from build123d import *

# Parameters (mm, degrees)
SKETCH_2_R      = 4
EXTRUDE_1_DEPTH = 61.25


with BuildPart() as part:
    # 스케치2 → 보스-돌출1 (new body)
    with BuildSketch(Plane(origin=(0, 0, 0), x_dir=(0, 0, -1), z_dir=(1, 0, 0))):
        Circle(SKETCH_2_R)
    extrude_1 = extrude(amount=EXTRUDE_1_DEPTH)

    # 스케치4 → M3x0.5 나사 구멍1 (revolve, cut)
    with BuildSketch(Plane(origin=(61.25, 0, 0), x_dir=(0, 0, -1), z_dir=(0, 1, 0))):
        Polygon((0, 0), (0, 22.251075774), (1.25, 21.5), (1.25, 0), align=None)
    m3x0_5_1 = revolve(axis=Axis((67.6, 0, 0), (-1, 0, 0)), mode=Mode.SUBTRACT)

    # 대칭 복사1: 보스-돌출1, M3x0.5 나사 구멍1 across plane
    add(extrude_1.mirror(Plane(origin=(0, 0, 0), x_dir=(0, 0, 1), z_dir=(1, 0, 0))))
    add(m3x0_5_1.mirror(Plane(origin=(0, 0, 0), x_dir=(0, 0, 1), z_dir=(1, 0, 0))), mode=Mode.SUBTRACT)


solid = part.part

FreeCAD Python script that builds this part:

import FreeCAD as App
import Part
import Sketcher
from FreeCAD import Vector
Q = App.Units.Quantity


def add_polygon(sketch, points):
    """Adds a closed chain of lines whose ends are joined by coincident constraints."""
    first, n = sketch.GeometryCount, len(points)
    for a, b in zip(points, points[1:] + points[:1]):
        sketch.addGeometry(Part.LineSegment(App.Vector(*a, 0), App.Vector(*b, 0)), False)
    for i in range(n):
        sketch.addConstraint(Sketcher.Constraint("Coincident", first + i, 2, first + (i + 1) % n, 1))

doc = App.newDocument("Part")
params = doc.addObject("Spreadsheet::Sheet", "Params")
for row, (alias, value) in enumerate([
    ("sketch1_diameter", "8 mm"),
    ("pad1_length", "61.25 mm"),
    ("sketch2_width", "21.5 mm"),
    ("sketch2_height", "1.25 mm"),
    ("groove_angle", "360 deg"),
], start=1):
    params.set(f"A{row}", alias)
    params.set(f"B{row}", "=" + value)
    params.setAlias(f"B{row}", alias)

body = doc.addObject("PartDesign::Body", "Body")

# Sketch on YZ plane
sketch1 = body.newObject("Sketcher::SketchObject", "Sketch")
sketch1.AttachmentSupport = (doc.getObject("YZ_Plane"), [""])
sketch1.MapMode = "FlatFace"
sketch1.addGeometry(Part.Circle(Vector(0, 0, 0), Vector(0, 0, 1), 4), False)
sketch1.addConstraint([
    Sketcher.Constraint("Coincident", 0, 3, -1, 1),
    Sketcher.Constraint("Diameter", 0, 8.0),
])
sketch1.setExpression("Constraints[1]", "Params.sketch1_diameter")
pad1 = body.newObject("PartDesign::Pad", "Pad")
pad1.Profile = sketch1
pad1.setExpression("Length", "Params.pad1_length")

# Sketch on XZ plane
sketch2 = body.newObject("Sketcher::SketchObject", "Sketch001")
sketch2.AttachmentSupport = (doc.getObject("XZ_Plane"), [""])
sketch2.MapMode = "FlatFace"
add_polygon(sketch2, [(38.998924, 0), (61.25, 0), (61.25, -1.25), (39.75, -1.25)])  # lines 0-3
sketch2.addConstraint([
    Sketcher.Constraint("Horizontal", 0),
    Sketcher.Constraint("Vertical", 1),
    Sketcher.Constraint("Horizontal", 2),
    Sketcher.Constraint("PointOnObject", 0, 2, -1),
    Sketcher.Constraint("Angle", 3, Q("121 deg")),
    Sketcher.Constraint("DistanceX", 2, 2, 2, 1, 21.5),
    Sketcher.Constraint("DistanceY", 1, 2, 1, 1, 1.25),
    Sketcher.Constraint("DistanceX", -1, 1, 0, 2, 61.25),
])
sketch2.setExpression("Constraints[9]", "Params.sketch2_width")
sketch2.setExpression("Constraints[10]", "Params.sketch2_height")
groove = body.newObject("PartDesign::Groove", "Groove")
groove.Profile = sketch2
groove.ReferenceAxis = (sketch2, ["H_Axis"])
groove.setExpression("Angle", "Params.groove_angle")
doc.recompute()

mirrored = body.newObject("PartDesign::Mirrored", "Mirrored")
mirrored.Originals = [pad1, groove]
mirrored.MirrorPlane = (doc.getObject("YZ_Plane"), [""])
body.Tip = mirrored

doc.recompute()
